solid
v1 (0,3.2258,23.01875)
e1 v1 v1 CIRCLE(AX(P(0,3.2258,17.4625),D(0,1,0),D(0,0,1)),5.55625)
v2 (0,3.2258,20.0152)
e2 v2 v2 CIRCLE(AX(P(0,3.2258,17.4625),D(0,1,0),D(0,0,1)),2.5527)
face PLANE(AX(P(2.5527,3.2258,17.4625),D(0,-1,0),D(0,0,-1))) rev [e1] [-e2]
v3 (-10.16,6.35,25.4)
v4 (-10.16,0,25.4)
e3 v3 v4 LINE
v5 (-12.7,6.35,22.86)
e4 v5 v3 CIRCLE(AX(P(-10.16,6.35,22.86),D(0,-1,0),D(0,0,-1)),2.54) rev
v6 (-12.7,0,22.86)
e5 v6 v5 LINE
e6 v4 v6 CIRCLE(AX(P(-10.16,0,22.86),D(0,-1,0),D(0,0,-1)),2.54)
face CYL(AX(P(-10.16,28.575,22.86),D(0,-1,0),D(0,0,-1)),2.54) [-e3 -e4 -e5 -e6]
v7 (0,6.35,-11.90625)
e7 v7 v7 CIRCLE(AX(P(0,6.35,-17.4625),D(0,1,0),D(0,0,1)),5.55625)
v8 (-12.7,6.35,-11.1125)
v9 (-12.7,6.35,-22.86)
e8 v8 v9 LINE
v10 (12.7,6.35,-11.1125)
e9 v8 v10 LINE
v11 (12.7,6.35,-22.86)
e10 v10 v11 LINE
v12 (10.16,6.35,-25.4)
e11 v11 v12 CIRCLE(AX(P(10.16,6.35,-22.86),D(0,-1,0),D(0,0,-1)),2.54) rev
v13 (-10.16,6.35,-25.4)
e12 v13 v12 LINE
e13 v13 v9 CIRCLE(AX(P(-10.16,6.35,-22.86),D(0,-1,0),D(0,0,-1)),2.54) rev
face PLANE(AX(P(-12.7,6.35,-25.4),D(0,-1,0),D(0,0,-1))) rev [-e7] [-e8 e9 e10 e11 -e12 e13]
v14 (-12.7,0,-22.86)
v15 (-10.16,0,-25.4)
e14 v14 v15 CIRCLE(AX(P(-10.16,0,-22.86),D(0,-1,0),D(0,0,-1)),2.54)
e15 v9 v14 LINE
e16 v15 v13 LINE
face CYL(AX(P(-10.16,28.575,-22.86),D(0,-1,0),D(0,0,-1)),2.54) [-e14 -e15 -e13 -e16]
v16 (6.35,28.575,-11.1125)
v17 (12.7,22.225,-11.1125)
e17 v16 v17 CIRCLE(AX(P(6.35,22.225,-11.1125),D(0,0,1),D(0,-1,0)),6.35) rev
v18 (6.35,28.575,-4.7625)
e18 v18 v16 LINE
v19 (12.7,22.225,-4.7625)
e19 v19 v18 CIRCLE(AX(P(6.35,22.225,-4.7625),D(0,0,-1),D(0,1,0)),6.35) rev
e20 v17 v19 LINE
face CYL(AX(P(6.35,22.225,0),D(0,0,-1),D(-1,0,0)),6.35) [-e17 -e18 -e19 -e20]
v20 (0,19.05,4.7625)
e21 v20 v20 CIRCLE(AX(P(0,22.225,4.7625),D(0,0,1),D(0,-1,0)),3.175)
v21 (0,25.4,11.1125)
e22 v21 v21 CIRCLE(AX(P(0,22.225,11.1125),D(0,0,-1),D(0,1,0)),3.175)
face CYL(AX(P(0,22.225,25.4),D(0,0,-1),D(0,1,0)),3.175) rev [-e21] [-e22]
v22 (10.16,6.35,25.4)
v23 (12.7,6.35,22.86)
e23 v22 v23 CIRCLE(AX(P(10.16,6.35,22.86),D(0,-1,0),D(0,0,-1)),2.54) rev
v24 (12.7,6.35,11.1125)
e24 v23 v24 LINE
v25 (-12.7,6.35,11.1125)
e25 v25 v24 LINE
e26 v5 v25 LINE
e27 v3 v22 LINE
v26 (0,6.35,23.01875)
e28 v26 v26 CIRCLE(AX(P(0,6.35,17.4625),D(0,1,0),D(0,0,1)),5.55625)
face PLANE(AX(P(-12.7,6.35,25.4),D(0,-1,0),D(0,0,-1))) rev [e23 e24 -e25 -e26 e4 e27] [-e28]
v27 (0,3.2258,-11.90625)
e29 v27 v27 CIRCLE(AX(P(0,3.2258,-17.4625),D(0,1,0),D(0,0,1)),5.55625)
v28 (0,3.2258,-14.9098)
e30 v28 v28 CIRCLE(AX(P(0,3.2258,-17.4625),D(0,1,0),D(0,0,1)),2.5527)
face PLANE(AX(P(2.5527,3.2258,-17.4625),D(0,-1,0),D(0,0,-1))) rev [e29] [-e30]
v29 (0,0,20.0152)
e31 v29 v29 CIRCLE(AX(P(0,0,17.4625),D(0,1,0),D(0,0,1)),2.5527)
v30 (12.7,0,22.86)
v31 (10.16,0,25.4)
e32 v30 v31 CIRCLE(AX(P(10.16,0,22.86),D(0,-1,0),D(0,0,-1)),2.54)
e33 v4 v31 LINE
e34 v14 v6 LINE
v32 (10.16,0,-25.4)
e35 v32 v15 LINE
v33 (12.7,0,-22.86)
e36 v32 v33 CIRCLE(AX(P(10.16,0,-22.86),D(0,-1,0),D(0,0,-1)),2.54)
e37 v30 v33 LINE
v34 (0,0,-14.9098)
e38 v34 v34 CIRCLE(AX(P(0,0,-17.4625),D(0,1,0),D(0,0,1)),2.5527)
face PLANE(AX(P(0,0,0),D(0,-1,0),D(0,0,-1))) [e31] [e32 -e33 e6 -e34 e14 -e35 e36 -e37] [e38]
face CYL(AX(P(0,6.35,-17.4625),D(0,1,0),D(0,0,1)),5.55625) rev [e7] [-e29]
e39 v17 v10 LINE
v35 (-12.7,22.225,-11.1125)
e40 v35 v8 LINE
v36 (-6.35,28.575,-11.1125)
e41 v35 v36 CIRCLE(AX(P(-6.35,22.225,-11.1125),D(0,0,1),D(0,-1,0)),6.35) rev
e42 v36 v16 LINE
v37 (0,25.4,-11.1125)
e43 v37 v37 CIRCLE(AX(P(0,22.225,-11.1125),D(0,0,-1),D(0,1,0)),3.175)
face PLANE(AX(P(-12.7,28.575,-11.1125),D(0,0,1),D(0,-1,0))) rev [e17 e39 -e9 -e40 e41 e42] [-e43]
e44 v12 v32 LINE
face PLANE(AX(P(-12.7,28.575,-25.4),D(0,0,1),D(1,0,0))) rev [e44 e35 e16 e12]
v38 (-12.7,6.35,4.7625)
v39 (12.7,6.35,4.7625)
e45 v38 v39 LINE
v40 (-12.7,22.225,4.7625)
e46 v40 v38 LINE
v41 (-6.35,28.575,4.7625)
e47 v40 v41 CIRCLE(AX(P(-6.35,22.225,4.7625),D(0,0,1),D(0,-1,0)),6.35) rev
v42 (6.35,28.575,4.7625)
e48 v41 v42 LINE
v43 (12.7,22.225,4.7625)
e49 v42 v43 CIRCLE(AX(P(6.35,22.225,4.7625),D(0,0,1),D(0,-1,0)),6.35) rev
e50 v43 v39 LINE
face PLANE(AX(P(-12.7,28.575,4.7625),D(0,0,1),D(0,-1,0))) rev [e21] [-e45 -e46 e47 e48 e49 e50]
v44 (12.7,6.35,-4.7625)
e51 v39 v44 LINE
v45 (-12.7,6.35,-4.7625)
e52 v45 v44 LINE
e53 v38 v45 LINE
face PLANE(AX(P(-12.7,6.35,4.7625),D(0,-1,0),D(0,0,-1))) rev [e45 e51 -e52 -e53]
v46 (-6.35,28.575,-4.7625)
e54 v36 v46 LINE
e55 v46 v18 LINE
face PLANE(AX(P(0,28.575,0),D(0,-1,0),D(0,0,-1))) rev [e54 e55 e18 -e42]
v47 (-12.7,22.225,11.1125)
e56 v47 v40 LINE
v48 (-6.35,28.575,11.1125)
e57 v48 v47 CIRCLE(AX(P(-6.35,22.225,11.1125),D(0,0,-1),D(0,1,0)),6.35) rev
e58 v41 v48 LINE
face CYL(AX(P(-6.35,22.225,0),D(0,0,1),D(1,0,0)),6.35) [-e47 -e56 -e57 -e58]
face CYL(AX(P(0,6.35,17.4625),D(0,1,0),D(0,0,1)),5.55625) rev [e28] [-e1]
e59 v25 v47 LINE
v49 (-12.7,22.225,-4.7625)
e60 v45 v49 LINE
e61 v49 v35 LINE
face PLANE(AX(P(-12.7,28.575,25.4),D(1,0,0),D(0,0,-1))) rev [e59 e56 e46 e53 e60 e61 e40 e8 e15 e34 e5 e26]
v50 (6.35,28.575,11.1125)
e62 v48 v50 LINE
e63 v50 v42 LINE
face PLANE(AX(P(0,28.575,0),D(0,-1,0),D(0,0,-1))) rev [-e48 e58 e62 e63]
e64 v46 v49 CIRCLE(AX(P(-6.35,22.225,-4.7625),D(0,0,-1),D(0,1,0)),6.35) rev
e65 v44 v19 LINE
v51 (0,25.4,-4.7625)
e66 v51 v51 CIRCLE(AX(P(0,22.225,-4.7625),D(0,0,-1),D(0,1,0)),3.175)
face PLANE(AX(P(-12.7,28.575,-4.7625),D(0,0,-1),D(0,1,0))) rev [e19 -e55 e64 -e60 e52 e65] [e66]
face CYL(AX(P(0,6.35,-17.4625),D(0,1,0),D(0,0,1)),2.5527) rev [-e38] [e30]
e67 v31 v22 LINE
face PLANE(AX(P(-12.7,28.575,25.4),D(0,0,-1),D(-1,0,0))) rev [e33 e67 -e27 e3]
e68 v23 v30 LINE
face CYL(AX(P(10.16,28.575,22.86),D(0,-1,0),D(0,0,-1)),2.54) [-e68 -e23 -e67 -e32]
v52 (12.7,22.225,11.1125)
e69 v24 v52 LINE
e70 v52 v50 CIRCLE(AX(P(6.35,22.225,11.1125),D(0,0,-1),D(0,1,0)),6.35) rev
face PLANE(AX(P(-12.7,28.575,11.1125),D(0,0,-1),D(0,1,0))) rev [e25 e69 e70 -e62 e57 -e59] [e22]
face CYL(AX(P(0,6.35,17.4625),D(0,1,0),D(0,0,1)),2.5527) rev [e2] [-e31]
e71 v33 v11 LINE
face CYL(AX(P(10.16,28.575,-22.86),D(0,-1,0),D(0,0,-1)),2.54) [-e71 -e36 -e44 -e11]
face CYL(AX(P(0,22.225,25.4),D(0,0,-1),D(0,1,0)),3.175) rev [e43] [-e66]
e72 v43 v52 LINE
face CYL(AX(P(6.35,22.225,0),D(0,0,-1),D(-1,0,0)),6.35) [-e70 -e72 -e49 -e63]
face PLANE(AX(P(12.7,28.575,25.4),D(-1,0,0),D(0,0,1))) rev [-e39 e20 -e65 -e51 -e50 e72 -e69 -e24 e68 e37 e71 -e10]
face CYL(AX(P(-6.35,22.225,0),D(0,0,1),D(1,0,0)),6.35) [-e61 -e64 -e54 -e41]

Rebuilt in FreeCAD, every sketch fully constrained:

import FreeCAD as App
import Part
import Sketcher
from FreeCAD import Vector
Q = App.Units.Quantity


def edges_at(feature, points):
    """Names of the edges that pass closest to the given points."""
    edges = feature.Shape.Edges
    near = lambda p: min(range(len(edges)), key=lambda i: edges[i].distToShape(Part.Vertex(*p))[0])
    return sorted({f"Edge{near(p) + 1}" for p in points})


def add_polygon(sketch, points):
    """Adds a closed chain of lines whose ends are joined by coincident constraints."""
    first, n = sketch.GeometryCount, len(points)
    for a, b in zip(points, points[1:] + points[:1]):
        sketch.addGeometry(Part.LineSegment(App.Vector(*a, 0), App.Vector(*b, 0)), False)
    for i in range(n):
        sketch.addConstraint(Sketcher.Constraint("Coincident", first + i, 2, first + (i + 1) % n, 1))

doc = App.newDocument("Part")
params = doc.addObject("Spreadsheet::Sheet", "Params")
for row, (alias, value) in enumerate([
    ("sketch1_width", "1 in"),
    ("sketch1_height", "2 in"),
    ("pad1_length", "1.125 in"),
    ("sketch2_width", "0.875 in"),
    ("sketch2_height", "0.5625 in"),
    ("sketch2_height2", "0.375 in"),
    ("sketch3_diameter", "0.201 in"),
    ("hole_diameter", "0.201 in"),
    ("hole_depth", "0.25 in"),
    ("hole_cbore_diameter", "0.4375 in"),
    ("hole_cbore_depth", "0.123 in"),
    ("sketch4_diameter", "0.25 in"),
    ("fillet_radius", "0.25 in"),
    ("fillet2_radius", "0.1 in"),
], start=1):
    params.set(f"A{row}", alias)
    params.set(f"B{row}", "=" + value)
    params.setAlias(f"B{row}", alias)

body = doc.addObject("PartDesign::Body", "Body")

# Sketch on XZ plane
sketch1 = body.newObject("Sketcher::SketchObject", "Sketch")
sketch1.AttachmentSupport = (doc.getObject("XZ_Plane"), [""])
sketch1.MapMode = "FlatFace"
add_polygon(sketch1, [(-12.7, -25.4), (-12.7, 25.4), (12.7, 25.4), (12.7, -25.4)])  # lines 0-3
sketch1.addConstraint(Sketcher.Constraint("Vertical", 0))
sketch1.addConstraint(Sketcher.Constraint("Horizontal", 1))
sketch1.addConstraint(Sketcher.Constraint("Vertical", 2))
sketch1.addConstraint(Sketcher.Constraint("Horizontal", 3))
sketch1.addConstraint(Sketcher.Constraint("Symmetric", 0, 2, 2, 2, -1, 1))
sketch1.addConstraint(Sketcher.Constraint("DistanceX", 1, 1, 1, 2, Q("1 in")))
sketch1.addConstraint(Sketcher.Constraint("DistanceY", 0, 1, 0, 2, Q("2 in")))
sketch1.setExpression("Constraints[9]", "Params.sketch1_width")
sketch1.setExpression("Constraints[10]", "Params.sketch1_height")
pad1 = body.newObject("PartDesign::Pad", "Pad")
pad1.Profile = sketch1
pad1.setExpression("Length", "Params.pad1_length")
pad1.Reversed = True

# Sketch on YZ plane
sketch2 = body.newObject("Sketcher::SketchObject", "Sketch001")
sketch2.AttachmentSupport = (doc.getObject("YZ_Plane"), [""])
sketch2.MapMode = "FlatFace"
sketch2.AttachmentOffset = App.Placement(Vector(0, 0, 0.5 * 25.4), App.Rotation())
add_polygon(sketch2, [(28.575, 25.4), (6.35, 25.4), (6.35, 11.1125), (28.575, 11.1125)])  # lines 0-3
add_polygon(sketch2, [(28.575, -11.1125), (6.35, -11.1125), (6.35, -25.4), (28.575, -25.4)])  # lines 4-7
add_polygon(sketch2, [(28.575, 4.7625), (6.35, 4.7625), (6.35, -4.7625), (28.575, -4.7625)])  # lines 8-11
sketch2.addConstraint(Sketcher.Constraint("Horizontal", 0))
sketch2.addConstraint(Sketcher.Constraint("Vertical", 1))
sketch2.addConstraint(Sketcher.Constraint("Horizontal", 2))
sketch2.addConstraint(Sketcher.Constraint("Vertical", 3))
sketch2.addConstraint(Sketcher.Constraint("Horizontal", 4))
sketch2.addConstraint(Sketcher.Constraint("Vertical", 5))
sketch2.addConstraint(Sketcher.Constraint("Horizontal", 6))
sketch2.addConstraint(Sketcher.Constraint("Vertical", 7))
sketch2.addConstraint(Sketcher.Constraint("Horizontal", 8))
sketch2.addConstraint(Sketcher.Constraint("Vertical", 9))
sketch2.addConstraint(Sketcher.Constraint("Horizontal", 10))
sketch2.addConstraint(Sketcher.Constraint("Vertical", 11))
sketch2.addConstraint(Sketcher.Constraint("Symmetric", 1, 2, 4, 2, -1))
sketch2.addConstraint(Sketcher.Constraint("Symmetric", 3, 2, 6, 2, -1))
sketch2.addConstraint(Sketcher.Constraint("Vertical", 5, 2, 8, 2))
sketch2.addConstraint(Sketcher.Constraint("Vertical", 7, 2, 10, 2))
sketch2.addConstraint(Sketcher.Constraint("DistanceY", -1, 1, 0, 2, Q("1 in")))
sketch2.addConstraint(Sketcher.Constraint("DistanceX", 0, 2, 0, 1, Q("0.875 in")))
sketch2.addConstraint(Sketcher.Constraint("DistanceY", 1, 2, 1, 1, Q("0.5625 in")))
sketch2.addConstraint(Sketcher.Constraint("DistanceY", 9, 2, 9, 1, Q("0.375 in")))
sketch2.addConstraint(Sketcher.Constraint("DistanceX", -1, 1, 0, 2, Q("0.25 in")))
sketch2.addConstraint(Sketcher.Constraint("DistanceY", 8, 2, 1, 2, Q("0.25 in")))
sketch2.setExpression("Constraints[29]", "Params.sketch2_width")
sketch2.setExpression("Constraints[30]", "Params.sketch2_height")
sketch2.setExpression("Constraints[31]", "Params.sketch2_height2")
pocket1 = body.newObject("PartDesign::Pocket", "Pocket")
pocket1.Profile = sketch2
pocket1.Type = "ThroughAll"

# Sketch on XZ plane
sketch3 = body.newObject("Sketcher::SketchObject", "Sketch002")
sketch3.AttachmentSupport = (doc.getObject("XZ_Plane"), [""])
sketch3.MapMode = "FlatFace"
sketch3.AttachmentOffset = App.Placement(Vector(0, 0, -0.25 * 25.4), App.Rotation())
sketch3.addGeometry(Part.Circle(Vector(0, 17.4625, 0), Vector(0, 0, 1), 2.5527), False)
sketch3.addGeometry(Part.Circle(Vector(0, -17.4625, 0), Vector(0, 0, 1), 2.5527), False)
sketch3.addConstraint(Sketcher.Constraint("Equal", 0, 1))
sketch3.addConstraint(Sketcher.Constraint("Symmetric", 0, 3, 1, 3, -1, 1))
sketch3.addConstraint(Sketcher.Constraint("PointOnObject", 0, 3, -2))
sketch3.addConstraint(Sketcher.Constraint("Diameter", 0, Q("0.201 in")))
sketch3.addConstraint(Sketcher.Constraint("DistanceY", -1, 1, 0, 3, Q("0.6875 in")))
sketch3.setExpression("Constraints[3]", "Params.sketch3_diameter")
doc.recompute()
hole = body.newObject("PartDesign::Hole", "Hole")
hole.Profile = sketch3
hole.ThreadType = "None"
hole.setExpression("Diameter", "Params.hole_diameter")
hole.DepthType = "Dimension"
hole.setExpression("Depth", "Params.hole_depth")
hole.DrillPoint = "Angled"
hole.DrillPointAngle = 118
hole.HoleCutType = "Counterbore"
hole.setExpression("HoleCutDiameter", "Params.hole_cbore_diameter")
hole.setExpression("HoleCutDepth", "Params.hole_cbore_depth")
hole.Reversed = True

# Sketch on XY plane
sketch4 = body.newObject("Sketcher::SketchObject", "Sketch003")
sketch4.AttachmentSupport = (doc.getObject("XY_Plane"), [""])
sketch4.MapMode = "FlatFace"
sketch4.AttachmentOffset = App.Placement(Vector(0, 0, -0.4375 * 25.4), App.Rotation())
sketch4.addGeometry(Part.Circle(Vector(0, 22.225, 0), Vector(0, 0, 1), 3.175), False)
sketch4.addConstraint(Sketcher.Constraint("PointOnObject", 0, 3, -2))
sketch4.addConstraint(Sketcher.Constraint("Diameter", 0, Q("0.25 in")))
sketch4.addConstraint(Sketcher.Constraint("DistanceY", -1, 1, 0, 3, Q("0.875 in")))
sketch4.setExpression("Constraints[1]", "Params.sketch4_diameter")
pocket2 = body.newObject("PartDesign::Pocket", "Pocket001")
pocket2.Profile = sketch4
pocket2.Type = "ThroughAll"
pocket2.Reversed = True
doc.recompute()

fillet = body.newObject("PartDesign::Fillet", "Fillet")
fillet.Base = (pocket2, edges_at(pocket2, [
    (12.7, 28.575, 7.938),
    (-12.7, 28.575, -7.938),
    (-12.7, 28.575, 7.938),
    (12.7, 28.575, -7.938),
]))
fillet.setExpression("Radius", "Params.fillet_radius")
doc.recompute()

fillet2 = body.newObject("PartDesign::Fillet", "Fillet001")
fillet2.Base = (fillet, edges_at(fillet, [
    (12.7, 3.175, 25.4),
    (-12.7, 3.175, 25.4),
    (-12.7, 3.175, -25.4),
    (12.7, 3.175, -25.4),
]))
fillet2.setExpression("Radius", "Params.fillet2_radius")

doc.recompute()
